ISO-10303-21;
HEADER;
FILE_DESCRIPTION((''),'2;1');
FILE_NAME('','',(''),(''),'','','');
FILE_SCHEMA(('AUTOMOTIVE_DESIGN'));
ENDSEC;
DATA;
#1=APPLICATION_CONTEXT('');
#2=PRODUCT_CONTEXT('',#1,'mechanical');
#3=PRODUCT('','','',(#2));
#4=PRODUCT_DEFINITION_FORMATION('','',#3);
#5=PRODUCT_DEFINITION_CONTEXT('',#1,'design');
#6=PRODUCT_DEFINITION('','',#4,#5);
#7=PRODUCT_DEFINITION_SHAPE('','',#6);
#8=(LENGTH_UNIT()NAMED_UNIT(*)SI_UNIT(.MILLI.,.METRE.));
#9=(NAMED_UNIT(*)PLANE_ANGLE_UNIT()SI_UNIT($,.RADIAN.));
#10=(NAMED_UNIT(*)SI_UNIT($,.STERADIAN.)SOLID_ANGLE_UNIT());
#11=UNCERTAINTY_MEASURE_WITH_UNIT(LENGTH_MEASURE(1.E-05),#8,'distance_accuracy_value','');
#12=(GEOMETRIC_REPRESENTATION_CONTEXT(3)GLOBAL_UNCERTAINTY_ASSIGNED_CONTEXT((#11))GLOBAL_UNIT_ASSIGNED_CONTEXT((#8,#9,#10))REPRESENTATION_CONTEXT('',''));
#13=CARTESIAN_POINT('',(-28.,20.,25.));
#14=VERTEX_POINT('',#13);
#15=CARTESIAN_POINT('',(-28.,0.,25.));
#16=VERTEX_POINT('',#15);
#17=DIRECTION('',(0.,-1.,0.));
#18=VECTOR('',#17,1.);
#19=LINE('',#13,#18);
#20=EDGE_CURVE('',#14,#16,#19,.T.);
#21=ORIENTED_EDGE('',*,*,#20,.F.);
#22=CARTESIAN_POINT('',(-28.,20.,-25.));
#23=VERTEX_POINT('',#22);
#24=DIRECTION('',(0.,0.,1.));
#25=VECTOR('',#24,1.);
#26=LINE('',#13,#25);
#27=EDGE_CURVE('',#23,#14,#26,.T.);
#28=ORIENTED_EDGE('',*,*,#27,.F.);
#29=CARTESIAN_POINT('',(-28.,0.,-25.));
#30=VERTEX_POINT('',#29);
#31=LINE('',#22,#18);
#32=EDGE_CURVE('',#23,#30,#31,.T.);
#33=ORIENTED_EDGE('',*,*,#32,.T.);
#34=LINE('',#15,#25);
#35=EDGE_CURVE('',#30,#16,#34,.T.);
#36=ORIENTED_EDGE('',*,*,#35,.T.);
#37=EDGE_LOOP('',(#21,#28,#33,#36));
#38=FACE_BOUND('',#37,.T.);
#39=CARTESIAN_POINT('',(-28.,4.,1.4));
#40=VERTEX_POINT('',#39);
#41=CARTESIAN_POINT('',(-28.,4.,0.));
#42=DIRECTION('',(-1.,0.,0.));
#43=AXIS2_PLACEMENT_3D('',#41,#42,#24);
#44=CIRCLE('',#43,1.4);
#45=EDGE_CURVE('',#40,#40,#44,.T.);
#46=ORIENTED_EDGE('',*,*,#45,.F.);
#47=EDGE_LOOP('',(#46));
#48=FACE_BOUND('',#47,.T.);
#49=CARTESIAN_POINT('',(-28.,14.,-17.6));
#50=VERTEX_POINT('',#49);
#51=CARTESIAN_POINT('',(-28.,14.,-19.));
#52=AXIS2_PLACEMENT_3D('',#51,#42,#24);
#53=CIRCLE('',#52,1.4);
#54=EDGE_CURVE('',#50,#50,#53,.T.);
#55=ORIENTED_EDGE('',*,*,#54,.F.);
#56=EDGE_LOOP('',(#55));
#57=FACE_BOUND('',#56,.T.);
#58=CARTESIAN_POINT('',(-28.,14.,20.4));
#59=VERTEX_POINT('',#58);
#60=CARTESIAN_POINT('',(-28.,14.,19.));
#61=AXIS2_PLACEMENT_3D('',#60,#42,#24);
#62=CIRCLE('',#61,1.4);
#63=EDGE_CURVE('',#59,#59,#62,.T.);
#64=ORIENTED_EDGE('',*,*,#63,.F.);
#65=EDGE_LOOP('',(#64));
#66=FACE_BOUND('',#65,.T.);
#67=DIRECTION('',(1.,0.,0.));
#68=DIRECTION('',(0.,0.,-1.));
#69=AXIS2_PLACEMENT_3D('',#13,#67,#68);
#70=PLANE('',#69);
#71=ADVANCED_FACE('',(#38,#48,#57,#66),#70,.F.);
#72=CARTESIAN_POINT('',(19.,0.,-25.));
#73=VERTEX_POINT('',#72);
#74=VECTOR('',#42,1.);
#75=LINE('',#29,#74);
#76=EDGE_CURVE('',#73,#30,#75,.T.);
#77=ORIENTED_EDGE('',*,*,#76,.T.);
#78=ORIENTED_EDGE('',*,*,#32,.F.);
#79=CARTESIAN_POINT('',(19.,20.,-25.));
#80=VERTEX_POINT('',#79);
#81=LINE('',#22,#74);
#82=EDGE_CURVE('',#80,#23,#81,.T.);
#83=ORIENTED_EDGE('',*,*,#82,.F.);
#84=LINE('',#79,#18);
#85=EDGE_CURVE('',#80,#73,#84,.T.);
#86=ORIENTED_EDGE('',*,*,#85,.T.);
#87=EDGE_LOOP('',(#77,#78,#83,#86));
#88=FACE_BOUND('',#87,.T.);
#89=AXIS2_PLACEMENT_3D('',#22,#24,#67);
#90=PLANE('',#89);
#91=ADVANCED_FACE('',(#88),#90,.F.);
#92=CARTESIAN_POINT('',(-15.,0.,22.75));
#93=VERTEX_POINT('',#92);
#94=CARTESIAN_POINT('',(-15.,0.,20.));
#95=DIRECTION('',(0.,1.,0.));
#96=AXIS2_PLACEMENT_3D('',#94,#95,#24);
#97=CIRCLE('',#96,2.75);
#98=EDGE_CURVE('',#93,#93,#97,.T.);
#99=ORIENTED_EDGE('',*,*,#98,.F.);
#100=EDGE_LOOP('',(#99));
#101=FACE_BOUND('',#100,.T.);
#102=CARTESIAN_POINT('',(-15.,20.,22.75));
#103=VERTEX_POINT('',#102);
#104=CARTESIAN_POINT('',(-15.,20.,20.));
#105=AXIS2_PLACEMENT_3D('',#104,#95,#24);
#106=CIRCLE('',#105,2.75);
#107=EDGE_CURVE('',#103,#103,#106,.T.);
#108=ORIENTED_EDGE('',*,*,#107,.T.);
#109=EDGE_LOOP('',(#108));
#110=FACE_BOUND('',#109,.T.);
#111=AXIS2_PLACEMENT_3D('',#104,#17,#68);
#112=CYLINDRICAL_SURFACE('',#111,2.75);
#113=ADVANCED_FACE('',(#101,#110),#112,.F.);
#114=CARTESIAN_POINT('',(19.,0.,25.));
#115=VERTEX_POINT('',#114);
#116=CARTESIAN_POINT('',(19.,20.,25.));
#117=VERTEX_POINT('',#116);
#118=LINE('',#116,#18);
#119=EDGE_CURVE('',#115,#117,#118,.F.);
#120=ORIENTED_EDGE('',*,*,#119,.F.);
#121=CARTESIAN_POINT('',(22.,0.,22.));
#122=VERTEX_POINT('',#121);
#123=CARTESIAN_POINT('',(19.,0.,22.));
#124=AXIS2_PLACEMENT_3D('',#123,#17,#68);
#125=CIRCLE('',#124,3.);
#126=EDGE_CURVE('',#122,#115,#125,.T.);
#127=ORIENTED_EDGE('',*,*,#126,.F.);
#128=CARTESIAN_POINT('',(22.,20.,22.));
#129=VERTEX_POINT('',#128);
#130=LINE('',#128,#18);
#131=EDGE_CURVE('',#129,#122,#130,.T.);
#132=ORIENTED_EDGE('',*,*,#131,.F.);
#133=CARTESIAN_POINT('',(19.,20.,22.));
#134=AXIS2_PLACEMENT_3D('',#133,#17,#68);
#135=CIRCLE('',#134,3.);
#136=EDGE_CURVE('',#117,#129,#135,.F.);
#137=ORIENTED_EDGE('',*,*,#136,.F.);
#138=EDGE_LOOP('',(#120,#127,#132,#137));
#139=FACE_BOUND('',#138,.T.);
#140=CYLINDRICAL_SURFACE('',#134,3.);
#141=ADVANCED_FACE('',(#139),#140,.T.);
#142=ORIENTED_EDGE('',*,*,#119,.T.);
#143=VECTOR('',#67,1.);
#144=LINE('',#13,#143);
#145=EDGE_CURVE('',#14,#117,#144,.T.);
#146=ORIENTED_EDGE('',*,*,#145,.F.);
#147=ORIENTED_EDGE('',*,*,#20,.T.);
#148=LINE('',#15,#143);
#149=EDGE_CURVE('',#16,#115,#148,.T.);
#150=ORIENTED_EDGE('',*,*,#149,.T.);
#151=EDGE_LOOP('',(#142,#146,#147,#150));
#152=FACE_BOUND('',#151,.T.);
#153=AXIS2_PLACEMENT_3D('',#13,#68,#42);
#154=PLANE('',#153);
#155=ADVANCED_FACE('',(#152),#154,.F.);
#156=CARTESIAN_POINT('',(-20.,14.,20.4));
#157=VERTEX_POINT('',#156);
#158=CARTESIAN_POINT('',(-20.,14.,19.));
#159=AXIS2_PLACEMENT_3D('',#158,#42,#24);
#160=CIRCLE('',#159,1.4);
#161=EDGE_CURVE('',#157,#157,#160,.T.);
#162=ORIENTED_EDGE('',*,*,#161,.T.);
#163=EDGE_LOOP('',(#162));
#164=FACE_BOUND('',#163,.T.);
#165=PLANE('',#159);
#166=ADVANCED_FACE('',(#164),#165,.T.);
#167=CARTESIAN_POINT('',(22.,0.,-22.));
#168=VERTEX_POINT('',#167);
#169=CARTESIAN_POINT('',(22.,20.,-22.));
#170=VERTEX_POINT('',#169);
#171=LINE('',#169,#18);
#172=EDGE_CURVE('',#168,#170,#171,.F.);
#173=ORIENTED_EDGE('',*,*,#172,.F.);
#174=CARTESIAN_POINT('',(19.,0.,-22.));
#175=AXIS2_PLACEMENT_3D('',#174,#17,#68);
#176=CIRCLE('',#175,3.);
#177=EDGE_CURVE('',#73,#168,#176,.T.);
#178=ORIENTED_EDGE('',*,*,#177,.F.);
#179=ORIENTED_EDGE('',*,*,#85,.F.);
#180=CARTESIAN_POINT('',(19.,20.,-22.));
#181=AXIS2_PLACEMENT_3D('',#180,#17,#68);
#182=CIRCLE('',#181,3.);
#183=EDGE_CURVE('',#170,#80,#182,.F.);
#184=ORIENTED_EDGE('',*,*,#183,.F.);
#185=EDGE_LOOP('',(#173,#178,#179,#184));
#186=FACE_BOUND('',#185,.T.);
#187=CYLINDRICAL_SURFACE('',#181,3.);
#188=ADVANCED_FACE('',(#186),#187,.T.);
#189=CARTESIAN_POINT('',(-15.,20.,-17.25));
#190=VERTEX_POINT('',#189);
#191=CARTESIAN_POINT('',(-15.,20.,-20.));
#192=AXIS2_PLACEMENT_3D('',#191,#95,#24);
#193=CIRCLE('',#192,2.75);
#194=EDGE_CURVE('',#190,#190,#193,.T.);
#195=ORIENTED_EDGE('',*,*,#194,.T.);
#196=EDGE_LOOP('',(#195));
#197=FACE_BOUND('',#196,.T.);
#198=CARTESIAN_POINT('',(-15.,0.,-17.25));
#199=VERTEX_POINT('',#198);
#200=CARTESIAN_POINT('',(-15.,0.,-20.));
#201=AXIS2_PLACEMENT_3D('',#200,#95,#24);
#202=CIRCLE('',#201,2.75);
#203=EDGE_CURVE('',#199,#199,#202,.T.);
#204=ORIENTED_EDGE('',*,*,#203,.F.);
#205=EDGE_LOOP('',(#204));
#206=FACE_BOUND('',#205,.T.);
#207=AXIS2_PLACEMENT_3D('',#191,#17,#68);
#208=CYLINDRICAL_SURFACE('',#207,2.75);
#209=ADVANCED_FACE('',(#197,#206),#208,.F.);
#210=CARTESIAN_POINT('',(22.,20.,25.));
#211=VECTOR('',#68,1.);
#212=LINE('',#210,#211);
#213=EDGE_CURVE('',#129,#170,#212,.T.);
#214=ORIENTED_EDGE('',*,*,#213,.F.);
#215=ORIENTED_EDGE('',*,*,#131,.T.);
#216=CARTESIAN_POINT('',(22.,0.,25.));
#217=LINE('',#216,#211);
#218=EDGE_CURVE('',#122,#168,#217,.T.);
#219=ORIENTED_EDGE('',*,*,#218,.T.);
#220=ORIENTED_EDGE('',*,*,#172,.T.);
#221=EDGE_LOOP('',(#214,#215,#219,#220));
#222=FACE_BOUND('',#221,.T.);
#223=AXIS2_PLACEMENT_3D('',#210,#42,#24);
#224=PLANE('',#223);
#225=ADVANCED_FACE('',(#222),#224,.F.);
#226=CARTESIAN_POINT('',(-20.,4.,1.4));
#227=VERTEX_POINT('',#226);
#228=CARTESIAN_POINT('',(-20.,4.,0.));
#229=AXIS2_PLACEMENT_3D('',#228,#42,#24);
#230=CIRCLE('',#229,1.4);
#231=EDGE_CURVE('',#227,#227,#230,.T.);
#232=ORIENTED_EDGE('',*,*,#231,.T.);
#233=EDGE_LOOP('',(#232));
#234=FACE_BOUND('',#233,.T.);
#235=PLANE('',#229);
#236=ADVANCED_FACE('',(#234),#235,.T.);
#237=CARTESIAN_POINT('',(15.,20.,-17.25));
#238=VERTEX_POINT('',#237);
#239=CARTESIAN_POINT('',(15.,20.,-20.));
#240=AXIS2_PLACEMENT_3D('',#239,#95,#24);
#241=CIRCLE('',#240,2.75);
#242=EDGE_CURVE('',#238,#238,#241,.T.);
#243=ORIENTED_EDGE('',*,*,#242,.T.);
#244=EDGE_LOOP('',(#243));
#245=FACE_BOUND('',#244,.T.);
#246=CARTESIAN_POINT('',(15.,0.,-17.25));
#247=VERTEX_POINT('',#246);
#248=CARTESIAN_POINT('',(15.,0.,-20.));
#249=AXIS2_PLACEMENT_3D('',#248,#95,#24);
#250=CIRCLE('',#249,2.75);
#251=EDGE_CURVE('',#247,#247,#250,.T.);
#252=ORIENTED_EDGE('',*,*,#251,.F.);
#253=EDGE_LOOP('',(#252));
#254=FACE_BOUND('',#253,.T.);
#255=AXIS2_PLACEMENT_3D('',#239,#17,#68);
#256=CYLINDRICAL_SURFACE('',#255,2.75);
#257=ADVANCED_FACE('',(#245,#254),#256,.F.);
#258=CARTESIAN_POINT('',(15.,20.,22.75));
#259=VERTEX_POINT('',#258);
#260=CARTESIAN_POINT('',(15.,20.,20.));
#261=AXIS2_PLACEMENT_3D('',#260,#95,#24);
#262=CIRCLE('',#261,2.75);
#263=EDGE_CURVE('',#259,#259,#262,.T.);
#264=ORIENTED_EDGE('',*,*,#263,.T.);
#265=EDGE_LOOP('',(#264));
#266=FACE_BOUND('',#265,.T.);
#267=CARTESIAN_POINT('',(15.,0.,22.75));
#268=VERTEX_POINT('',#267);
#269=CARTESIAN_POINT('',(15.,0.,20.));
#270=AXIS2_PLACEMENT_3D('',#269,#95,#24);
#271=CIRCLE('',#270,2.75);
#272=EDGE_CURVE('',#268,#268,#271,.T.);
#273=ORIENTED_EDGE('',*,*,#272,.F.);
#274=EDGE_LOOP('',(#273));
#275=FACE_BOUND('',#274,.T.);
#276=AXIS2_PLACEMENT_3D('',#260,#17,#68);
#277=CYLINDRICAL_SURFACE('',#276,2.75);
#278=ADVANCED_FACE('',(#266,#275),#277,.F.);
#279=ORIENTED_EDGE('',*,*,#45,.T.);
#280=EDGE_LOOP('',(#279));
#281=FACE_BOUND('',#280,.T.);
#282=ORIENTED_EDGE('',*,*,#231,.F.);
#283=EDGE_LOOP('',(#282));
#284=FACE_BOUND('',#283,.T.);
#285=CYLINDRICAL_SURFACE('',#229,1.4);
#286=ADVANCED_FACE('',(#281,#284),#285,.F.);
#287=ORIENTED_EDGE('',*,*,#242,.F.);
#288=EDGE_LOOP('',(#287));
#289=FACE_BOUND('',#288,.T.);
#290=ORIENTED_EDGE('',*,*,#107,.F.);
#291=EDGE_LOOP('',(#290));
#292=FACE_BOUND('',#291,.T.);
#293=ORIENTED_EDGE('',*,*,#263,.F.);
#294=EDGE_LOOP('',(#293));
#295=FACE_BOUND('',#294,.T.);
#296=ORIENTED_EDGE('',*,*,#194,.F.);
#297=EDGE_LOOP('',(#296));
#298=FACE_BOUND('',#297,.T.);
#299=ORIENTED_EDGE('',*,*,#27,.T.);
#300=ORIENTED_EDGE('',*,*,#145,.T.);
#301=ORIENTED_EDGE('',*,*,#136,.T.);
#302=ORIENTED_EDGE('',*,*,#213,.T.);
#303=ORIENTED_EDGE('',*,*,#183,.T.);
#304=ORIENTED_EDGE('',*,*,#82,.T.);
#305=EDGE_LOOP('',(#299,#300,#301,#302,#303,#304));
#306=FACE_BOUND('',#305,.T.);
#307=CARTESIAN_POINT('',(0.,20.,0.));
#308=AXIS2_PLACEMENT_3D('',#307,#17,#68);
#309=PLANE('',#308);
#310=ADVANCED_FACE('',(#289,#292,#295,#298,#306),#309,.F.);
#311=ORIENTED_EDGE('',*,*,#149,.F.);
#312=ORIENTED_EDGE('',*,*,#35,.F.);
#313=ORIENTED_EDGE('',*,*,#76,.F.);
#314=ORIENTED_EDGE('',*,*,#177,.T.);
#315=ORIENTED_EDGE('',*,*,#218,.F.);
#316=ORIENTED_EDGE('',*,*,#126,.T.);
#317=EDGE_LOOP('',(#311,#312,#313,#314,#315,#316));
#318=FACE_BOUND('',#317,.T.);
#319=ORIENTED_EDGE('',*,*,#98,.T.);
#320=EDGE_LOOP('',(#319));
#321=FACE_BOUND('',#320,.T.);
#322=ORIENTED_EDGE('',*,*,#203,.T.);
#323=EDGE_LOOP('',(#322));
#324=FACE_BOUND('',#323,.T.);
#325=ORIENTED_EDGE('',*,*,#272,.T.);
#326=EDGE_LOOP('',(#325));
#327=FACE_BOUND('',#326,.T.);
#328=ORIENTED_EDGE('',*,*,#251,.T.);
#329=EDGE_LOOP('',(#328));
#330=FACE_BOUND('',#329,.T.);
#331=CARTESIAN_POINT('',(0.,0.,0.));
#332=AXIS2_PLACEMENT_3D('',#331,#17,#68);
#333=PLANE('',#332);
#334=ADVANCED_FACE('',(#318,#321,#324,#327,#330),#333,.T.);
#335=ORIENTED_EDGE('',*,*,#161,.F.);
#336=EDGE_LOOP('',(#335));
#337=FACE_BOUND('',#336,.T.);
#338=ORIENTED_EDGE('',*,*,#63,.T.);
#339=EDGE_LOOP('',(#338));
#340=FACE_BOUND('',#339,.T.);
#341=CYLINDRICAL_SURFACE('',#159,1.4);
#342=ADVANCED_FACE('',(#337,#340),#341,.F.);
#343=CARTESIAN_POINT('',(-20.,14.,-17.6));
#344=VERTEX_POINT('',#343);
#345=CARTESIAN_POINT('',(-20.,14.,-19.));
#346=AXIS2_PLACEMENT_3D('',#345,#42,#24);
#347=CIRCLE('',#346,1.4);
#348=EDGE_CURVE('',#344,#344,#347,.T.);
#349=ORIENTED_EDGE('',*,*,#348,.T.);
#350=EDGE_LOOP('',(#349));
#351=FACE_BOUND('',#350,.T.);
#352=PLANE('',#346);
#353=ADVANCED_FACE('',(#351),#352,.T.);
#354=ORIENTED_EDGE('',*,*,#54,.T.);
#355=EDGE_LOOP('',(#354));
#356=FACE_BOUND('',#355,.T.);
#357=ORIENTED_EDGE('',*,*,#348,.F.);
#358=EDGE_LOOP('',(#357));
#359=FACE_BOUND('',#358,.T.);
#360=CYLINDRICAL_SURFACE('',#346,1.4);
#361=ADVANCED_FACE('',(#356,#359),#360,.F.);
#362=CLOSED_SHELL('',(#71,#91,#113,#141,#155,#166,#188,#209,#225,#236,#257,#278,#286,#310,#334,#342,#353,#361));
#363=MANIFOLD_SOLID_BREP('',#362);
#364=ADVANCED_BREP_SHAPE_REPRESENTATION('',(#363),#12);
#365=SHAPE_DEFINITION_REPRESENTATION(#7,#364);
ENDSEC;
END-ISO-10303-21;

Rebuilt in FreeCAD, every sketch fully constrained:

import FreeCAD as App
import Part
import Sketcher


def edges_at(feature, points):
    """Names of the edges that pass closest to the given points."""
    edges = feature.Shape.Edges
    near = lambda p: min(range(len(edges)), key=lambda i: edges[i].distToShape(Part.Vertex(*p))[0])
    return sorted({f"Edge{near(p) + 1}" for p in points})


def add_polygon(sketch, points):
    """Adds a closed chain of lines whose ends are joined by coincident constraints."""
    first, n = sketch.GeometryCount, len(points)
    for a, b in zip(points, points[1:] + points[:1]):
        sketch.addGeometry(Part.LineSegment(App.Vector(*a, 0), App.Vector(*b, 0)), False)
    for i in range(n):
        sketch.addConstraint(Sketcher.Constraint("Coincident", first + i, 2, first + (i + 1) % n, 1))

doc = App.newDocument("Part")
body = doc.addObject("PartDesign::Body", "Body")

sketch1 = body.newObject("Sketcher::SketchObject", "Sketch")
sketch1.AttachmentSupport = (doc.getObject("XZ_Plane"), [""])
sketch1.MapMode = "FlatFace"
add_polygon(sketch1, [(-28, -25), (-28, 25), (22, 25), (22, -25)])
sketch1.addGeometry(Part.Circle(App.Vector(-15, 20, 0), App.Vector(0, 0, 1), 2.8), False)
sketch1.addGeometry(Part.Circle(App.Vector(15, 20, 0), App.Vector(0, 0, 1), 2.8), False)
sketch1.addGeometry(Part.Circle(App.Vector(-15, -20, 0), App.Vector(0, 0, 1), 2.8), False)
sketch1.addGeometry(Part.Circle(App.Vector(15, -20, 0), App.Vector(0, 0, 1), 2.8), False)
sketch1.addConstraint([
    Sketcher.Constraint("Vertical", 0),
    Sketcher.Constraint("Horizontal", 1),
    Sketcher.Constraint("Vertical", 2),
    Sketcher.Constraint("Horizontal", 3),
    Sketcher.Constraint("Equal", 4, 5),
    Sketcher.Constraint("Equal", 5, 6),
    Sketcher.Constraint("Equal", 6, 7),
    Sketcher.Constraint("Symmetric", 5, 3, 6, 3, -1, 1),
    Sketcher.Constraint("Symmetric", 4, 3, 7, 3, -1, 1),
    Sketcher.Constraint("Symmetric", 4, 3, 5, 3, -2),
    Sketcher.Constraint("Equal", 3, 0),
    Sketcher.Constraint("Diameter", 4, 5.5),
    Sketcher.Constraint("DistanceX", 1, 1, 1, 2, 50.0),
    Sketcher.Constraint("DistanceX", 4, 3, -1, 1, 15.0),
    Sketcher.Constraint("DistanceY", -1, 1, 4, 3, 20.0),
    Sketcher.Constraint("DistanceX", 0, 2, -1, 1, 28.0),
    Sketcher.Constraint("DistanceY", -1, 1, 0, 2, 25.0),
])
pad1 = body.newObject("PartDesign::Pad", "Pad")
pad1.Profile = sketch1
pad1.Length = 20
pad1.Reversed = True
doc.recompute()

fillet = body.newObject("PartDesign::Fillet", "Fillet")
fillet.Base = (pad1, edges_at(pad1, [(22, 10, 25), (22, 10, -25)]))
fillet.Radius = 3

sketch2 = body.newObject("Sketcher::SketchObject", "Sketch001")
sketch2.AttachmentSupport = (doc.getObject("YZ_Plane"), [""])
sketch2.MapMode = "FlatFace"
sketch2.AttachmentOffset = App.Placement(App.Vector(0, 0, -28), App.Rotation())
sketch2.addGeometry([
    Part.Circle(App.Vector(14, -19, 0), App.Vector(0, 0, 1), 1.4),
    Part.Circle(App.Vector(4, 0, 0), App.Vector(0, 0, 1), 1.4),
    Part.Circle(App.Vector(14, 19, 0), App.Vector(0, 0, 1), 1.4),
], False)
sketch2.addConstraint([
    Sketcher.Constraint("Equal", 0, 1),
    Sketcher.Constraint("Equal", 1, 2),
    Sketcher.Constraint("Symmetric", 0, 3, 2, 3, -1),
    Sketcher.Constraint("PointOnObject", 1, 3, -1),
    Sketcher.Constraint("Diameter", 0, 2.8),
    Sketcher.Constraint("DistanceX", -1, 1, 0, 3, 14.0),
    Sketcher.Constraint("DistanceY", 0, 3, -1, 1, 19.0),
    Sketcher.Constraint("DistanceX", -1, 1, 1, 3, 4.0),
])
pocket1 = body.newObject("PartDesign::Pocket", "Pocket")
pocket1.Profile = sketch2
pocket1.Length = 8
pocket1.Reversed = True

doc.recompute()
